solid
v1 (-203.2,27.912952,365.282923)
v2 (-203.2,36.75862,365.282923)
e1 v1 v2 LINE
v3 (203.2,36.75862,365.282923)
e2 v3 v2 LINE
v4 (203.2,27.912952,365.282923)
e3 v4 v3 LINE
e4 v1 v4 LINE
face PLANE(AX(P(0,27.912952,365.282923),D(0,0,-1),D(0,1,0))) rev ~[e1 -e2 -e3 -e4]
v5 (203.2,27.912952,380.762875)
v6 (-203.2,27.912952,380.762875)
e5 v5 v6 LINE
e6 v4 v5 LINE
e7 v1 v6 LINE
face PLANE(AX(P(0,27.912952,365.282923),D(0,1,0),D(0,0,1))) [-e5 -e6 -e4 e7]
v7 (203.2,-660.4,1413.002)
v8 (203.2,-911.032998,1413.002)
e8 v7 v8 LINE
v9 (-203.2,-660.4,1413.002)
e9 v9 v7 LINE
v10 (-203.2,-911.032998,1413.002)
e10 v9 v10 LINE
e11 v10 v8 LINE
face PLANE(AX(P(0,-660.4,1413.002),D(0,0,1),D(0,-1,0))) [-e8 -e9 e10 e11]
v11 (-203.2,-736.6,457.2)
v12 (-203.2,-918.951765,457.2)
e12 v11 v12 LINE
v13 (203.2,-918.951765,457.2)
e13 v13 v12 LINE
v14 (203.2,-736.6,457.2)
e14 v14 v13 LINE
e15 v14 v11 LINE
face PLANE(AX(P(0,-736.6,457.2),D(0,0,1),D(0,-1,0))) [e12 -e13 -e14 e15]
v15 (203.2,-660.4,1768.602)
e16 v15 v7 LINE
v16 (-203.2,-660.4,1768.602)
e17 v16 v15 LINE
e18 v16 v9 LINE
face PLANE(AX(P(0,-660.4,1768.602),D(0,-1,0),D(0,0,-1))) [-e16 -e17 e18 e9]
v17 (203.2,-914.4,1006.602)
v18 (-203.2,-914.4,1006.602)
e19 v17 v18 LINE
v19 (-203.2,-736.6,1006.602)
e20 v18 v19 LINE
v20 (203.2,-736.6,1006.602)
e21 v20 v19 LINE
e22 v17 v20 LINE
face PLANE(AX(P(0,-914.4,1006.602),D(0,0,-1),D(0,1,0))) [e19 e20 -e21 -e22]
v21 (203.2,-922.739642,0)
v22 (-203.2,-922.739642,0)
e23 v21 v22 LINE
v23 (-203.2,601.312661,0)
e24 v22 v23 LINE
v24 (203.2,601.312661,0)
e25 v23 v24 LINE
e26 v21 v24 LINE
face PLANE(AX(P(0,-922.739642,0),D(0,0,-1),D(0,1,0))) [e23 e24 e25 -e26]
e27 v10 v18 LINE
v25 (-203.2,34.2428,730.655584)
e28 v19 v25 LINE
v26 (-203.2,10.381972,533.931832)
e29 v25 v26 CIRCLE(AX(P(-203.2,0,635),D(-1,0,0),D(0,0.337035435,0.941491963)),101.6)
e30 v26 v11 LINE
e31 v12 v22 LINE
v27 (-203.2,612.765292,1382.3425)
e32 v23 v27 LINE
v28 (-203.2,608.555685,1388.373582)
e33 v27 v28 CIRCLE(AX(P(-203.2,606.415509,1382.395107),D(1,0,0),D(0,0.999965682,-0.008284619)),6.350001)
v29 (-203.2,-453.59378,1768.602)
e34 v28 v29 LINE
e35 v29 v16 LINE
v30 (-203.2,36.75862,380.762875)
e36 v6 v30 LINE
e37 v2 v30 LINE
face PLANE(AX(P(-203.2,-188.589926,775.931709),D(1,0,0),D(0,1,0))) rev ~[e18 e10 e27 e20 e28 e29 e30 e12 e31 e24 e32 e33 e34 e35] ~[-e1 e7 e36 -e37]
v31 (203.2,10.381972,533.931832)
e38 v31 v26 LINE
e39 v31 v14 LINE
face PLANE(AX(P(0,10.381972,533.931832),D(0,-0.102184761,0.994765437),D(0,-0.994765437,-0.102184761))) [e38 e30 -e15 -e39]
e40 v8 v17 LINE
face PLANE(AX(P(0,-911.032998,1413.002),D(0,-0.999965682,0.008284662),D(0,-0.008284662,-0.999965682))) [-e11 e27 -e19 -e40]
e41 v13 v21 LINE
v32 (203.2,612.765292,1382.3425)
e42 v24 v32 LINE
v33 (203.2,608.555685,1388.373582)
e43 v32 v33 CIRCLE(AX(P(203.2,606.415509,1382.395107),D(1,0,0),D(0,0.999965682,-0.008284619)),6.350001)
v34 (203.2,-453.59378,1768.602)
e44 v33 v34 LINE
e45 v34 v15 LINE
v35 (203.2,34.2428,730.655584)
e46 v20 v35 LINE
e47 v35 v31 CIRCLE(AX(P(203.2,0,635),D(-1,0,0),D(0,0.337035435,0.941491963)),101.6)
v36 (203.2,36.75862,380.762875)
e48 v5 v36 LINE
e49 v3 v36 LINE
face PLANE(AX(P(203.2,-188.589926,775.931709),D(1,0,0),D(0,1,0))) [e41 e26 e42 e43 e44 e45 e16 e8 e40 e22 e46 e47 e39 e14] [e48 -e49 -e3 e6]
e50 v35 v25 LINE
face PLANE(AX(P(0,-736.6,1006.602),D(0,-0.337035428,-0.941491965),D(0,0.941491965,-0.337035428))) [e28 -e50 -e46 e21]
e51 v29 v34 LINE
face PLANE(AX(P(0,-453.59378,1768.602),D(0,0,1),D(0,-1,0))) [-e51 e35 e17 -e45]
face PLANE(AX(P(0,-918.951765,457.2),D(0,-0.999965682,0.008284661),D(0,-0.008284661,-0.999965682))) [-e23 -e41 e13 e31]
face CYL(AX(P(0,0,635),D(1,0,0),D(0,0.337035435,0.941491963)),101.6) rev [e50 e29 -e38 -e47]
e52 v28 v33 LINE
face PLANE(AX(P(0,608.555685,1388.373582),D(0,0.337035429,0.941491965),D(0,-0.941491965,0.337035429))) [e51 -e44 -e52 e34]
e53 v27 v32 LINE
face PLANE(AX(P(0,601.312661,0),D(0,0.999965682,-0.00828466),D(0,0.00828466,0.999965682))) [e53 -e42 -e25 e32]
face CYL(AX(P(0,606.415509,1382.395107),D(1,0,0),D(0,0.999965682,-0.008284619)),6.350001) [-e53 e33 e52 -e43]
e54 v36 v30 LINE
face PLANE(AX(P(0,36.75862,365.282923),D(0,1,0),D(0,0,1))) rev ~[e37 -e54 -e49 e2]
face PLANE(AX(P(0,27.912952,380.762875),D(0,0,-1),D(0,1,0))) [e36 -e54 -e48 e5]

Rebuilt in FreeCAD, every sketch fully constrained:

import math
import FreeCAD as App
import Part
import Sketcher
Q = App.Units.Quantity

doc = App.newDocument("Part")
body = doc.addObject("PartDesign::Body", "Body")

# Sketch on YZ plane
sketch1 = body.newObject("Sketcher::SketchObject", "Sketch")
sketch1.AttachmentSupport = (doc.getObject("YZ_Plane"), [""])
sketch1.MapMode = "FlatFace"
sketch1.addGeometry(Part.LineSegment(App.Vector(-922.739642, 0, 0), App.Vector(601.312661, 0, 0)), False)
sketch1.addGeometry(Part.LineSegment(App.Vector(601.312661, 0, 0), App.Vector(612.765292, 1382.3425, 0)), False)
sketch1.addGeometry(Part.ArcOfCircle(Part.Circle(App.Vector(606.415509, 1382.395107, 0), App.Vector(0, 0, 1), 6.350001), math.radians(-0.474679), math.radians(70.303633)), False)
sketch1.addGeometry(Part.LineSegment(App.Vector(608.555685, 1388.373582, 0), App.Vector(-453.59378, 1768.602, 0)), False)
sketch1.addGeometry(Part.LineSegment(App.Vector(-453.59378, 1768.602, 0), App.Vector(-660.4, 1768.602, 0)), False)
sketch1.addGeometry(Part.LineSegment(App.Vector(-660.4, 1768.602, 0), App.Vector(-660.4, 1413.002, 0)), False)
sketch1.addGeometry(Part.LineSegment(App.Vector(-660.4, 1413.002, 0), App.Vector(-911.032998, 1413.002, 0)), False)
sketch1.addGeometry(Part.LineSegment(App.Vector(-911.032998, 1413.002, 0), App.Vector(-914.4, 1006.602, 0)), False)
sketch1.addGeometry(Part.LineSegment(App.Vector(-914.4, 1006.602, 0), App.Vector(-736.6, 1006.602, 0)), False)
sketch1.addGeometry(Part.LineSegment(App.Vector(-736.6, 1006.602, 0), App.Vector(34.2428, 730.655584, 0)), False)
sketch1.addGeometry(Part.ArcOfCircle(Part.Circle(App.Vector(0, 635, 0), App.Vector(0, 0, 1), 101.6), math.radians(-84.135007), math.radians(70.303641)), False)
sketch1.addGeometry(Part.LineSegment(App.Vector(10.381972, 533.931832, 0), App.Vector(-736.6, 457.2, 0)), False)
sketch1.addGeometry(Part.LineSegment(App.Vector(-736.6, 457.2, 0), App.Vector(-918.951765, 457.2, 0)), False)
sketch1.addGeometry(Part.LineSegment(App.Vector(-918.951765, 457.2, 0), App.Vector(-922.739642, 0, 0)), False)
sketch1.addGeometry(Part.LineSegment(App.Vector(36.75862, 365.282923, 0), App.Vector(27.912952, 365.282923, 0)), False)
sketch1.addGeometry(Part.LineSegment(App.Vector(27.912952, 365.282923, 0), App.Vector(27.912952, 380.762875, 0)), False)
sketch1.addGeometry(Part.LineSegment(App.Vector(27.912952, 380.762875, 0), App.Vector(36.75862, 380.762875, 0)), False)
sketch1.addGeometry(Part.LineSegment(App.Vector(36.75862, 380.762875, 0), App.Vector(36.75862, 365.282923, 0)), False)
sketch1.addConstraint(Sketcher.Constraint("Coincident", 0, 2, 1, 1))
sketch1.addConstraint(Sketcher.Constraint("Tangent", 1, 2, 2, 1))
sketch1.addConstraint(Sketcher.Constraint("Tangent", 2, 2, 3, 1))
sketch1.addConstraint(Sketcher.Constraint("Coincident", 3, 2, 4, 1))
sketch1.addConstraint(Sketcher.Constraint("Coincident", 4, 2, 5, 1))
sketch1.addConstraint(Sketcher.Constraint("Coincident", 5, 2, 6, 1))
sketch1.addConstraint(Sketcher.Constraint("Coincident", 6, 2, 7, 1))
sketch1.addConstraint(Sketcher.Constraint("Coincident", 7, 2, 8, 1))
sketch1.addConstraint(Sketcher.Constraint("Coincident", 8, 2, 9, 1))
sketch1.addConstraint(Sketcher.Constraint("Tangent", 9, 2, 10, 2))
sketch1.addConstraint(Sketcher.Constraint("Tangent", 10, 1, 11, 1))
sketch1.addConstraint(Sketcher.Constraint("Coincident", 11, 2, 12, 1))
sketch1.addConstraint(Sketcher.Constraint("Coincident", 12, 2, 13, 1))
sketch1.addConstraint(Sketcher.Constraint("Coincident", 13, 2, 0, 1))
sketch1.addConstraint(Sketcher.Constraint("Coincident", 14, 2, 15, 1))
sketch1.addConstraint(Sketcher.Constraint("Coincident", 15, 2, 16, 1))
sketch1.addConstraint(Sketcher.Constraint("Coincident", 16, 2, 17, 1))
sketch1.addConstraint(Sketcher.Constraint("Coincident", 17, 2, 14, 1))
sketch1.addConstraint(Sketcher.Constraint("Horizontal", 0))
sketch1.addConstraint(Sketcher.Constraint("Horizontal", 4))
sketch1.addConstraint(Sketcher.Constraint("Vertical", 5))
sketch1.addConstraint(Sketcher.Constraint("Horizontal", 6))
sketch1.addConstraint(Sketcher.Constraint("Horizontal", 8))
sketch1.addConstraint(Sketcher.Constraint("Horizontal", 12))
sketch1.addConstraint(Sketcher.Constraint("Horizontal", 14))
sketch1.addConstraint(Sketcher.Constraint("Vertical", 15))
sketch1.addConstraint(Sketcher.Constraint("Horizontal", 16))
sketch1.addConstraint(Sketcher.Constraint("Vertical", 17))
sketch1.addConstraint(Sketcher.Constraint("PointOnObject", 10, 3, -2))
sketch1.addConstraint(Sketcher.Constraint("PointOnObject", 0, 2, -1))
sketch1.addConstraint(Sketcher.Constraint("Parallel", 1, 7))
sketch1.addConstraint(Sketcher.Constraint("Parallel", 3, 9))
sketch1.addConstraint(Sketcher.Constraint("Parallel", 7, 13))
sketch1.addConstraint(Sketcher.Constraint("Vertical", 8, 2, 11, 2))
sketch1.addConstraint(Sketcher.Constraint("Radius", 10, Q("4 in")))
sketch1.addConstraint(Sketcher.Constraint("DistanceX", 8, 1, 8, 2, Q("7 in")))
sketch1.addConstraint(Sketcher.Constraint("DistanceY", 5, 2, 5, 1, Q("14 in")))
sketch1.addConstraint(Sketcher.Constraint("Radius", 2, Q("0.25 in")))
sketch1.addConstraint(Sketcher.Constraint("DistanceY", -1, 1, 10, 3, Q("25 in")))
sketch1.addConstraint(Sketcher.Constraint("DistanceX", 4, 2, -1, 1, Q("26 in")))
sketch1.addConstraint(Sketcher.Constraint("DistanceX", 7, 2, -1, 1, Q("36 in")))
sketch1.addConstraint(Sketcher.Constraint("DistanceY", -1, 1, 11, 2, Q("18 in")))
sketch1.addConstraint(Sketcher.Constraint("DistanceY", 7, 2, 6, 2, Q("16 in")))
sketch1.addConstraint(Sketcher.Constraint("DistanceY", -1, 1, 3, 2, Q("69.63 in")))
sketch1.addConstraint(Sketcher.Constraint("DistanceX", 6, 2, 6, 1, 250.632998))
sketch1.addConstraint(Sketcher.Constraint("DistanceX", 4, 2, 4, 1, 206.80622))
sketch1.addConstraint(Sketcher.Constraint("DistanceY", -1, 1, 1, 2, 1382.3425))
sketch1.addConstraint(Sketcher.Constraint("DistanceX", 0, 1, 0, 2, 1524.052303))
sketch1.addConstraint(Sketcher.Constraint("DistanceX", 14, 2, 14, 1, 8.845668))
sketch1.addConstraint(Sketcher.Constraint("DistanceY", 15, 1, 15, 2, 15.479952))
sketch1.addConstraint(Sketcher.Constraint("DistanceX", -1, 1, 16, 2, 36.75862))
sketch1.addConstraint(Sketcher.Constraint("DistanceY", 14, 2, 10, 1, 168.648909))
pad1 = body.newObject("PartDesign::Pad", "Pad")
pad1.Profile = sketch1
pad1.Length = Q("16 in")
pad1.Midplane = True

doc.recompute()
